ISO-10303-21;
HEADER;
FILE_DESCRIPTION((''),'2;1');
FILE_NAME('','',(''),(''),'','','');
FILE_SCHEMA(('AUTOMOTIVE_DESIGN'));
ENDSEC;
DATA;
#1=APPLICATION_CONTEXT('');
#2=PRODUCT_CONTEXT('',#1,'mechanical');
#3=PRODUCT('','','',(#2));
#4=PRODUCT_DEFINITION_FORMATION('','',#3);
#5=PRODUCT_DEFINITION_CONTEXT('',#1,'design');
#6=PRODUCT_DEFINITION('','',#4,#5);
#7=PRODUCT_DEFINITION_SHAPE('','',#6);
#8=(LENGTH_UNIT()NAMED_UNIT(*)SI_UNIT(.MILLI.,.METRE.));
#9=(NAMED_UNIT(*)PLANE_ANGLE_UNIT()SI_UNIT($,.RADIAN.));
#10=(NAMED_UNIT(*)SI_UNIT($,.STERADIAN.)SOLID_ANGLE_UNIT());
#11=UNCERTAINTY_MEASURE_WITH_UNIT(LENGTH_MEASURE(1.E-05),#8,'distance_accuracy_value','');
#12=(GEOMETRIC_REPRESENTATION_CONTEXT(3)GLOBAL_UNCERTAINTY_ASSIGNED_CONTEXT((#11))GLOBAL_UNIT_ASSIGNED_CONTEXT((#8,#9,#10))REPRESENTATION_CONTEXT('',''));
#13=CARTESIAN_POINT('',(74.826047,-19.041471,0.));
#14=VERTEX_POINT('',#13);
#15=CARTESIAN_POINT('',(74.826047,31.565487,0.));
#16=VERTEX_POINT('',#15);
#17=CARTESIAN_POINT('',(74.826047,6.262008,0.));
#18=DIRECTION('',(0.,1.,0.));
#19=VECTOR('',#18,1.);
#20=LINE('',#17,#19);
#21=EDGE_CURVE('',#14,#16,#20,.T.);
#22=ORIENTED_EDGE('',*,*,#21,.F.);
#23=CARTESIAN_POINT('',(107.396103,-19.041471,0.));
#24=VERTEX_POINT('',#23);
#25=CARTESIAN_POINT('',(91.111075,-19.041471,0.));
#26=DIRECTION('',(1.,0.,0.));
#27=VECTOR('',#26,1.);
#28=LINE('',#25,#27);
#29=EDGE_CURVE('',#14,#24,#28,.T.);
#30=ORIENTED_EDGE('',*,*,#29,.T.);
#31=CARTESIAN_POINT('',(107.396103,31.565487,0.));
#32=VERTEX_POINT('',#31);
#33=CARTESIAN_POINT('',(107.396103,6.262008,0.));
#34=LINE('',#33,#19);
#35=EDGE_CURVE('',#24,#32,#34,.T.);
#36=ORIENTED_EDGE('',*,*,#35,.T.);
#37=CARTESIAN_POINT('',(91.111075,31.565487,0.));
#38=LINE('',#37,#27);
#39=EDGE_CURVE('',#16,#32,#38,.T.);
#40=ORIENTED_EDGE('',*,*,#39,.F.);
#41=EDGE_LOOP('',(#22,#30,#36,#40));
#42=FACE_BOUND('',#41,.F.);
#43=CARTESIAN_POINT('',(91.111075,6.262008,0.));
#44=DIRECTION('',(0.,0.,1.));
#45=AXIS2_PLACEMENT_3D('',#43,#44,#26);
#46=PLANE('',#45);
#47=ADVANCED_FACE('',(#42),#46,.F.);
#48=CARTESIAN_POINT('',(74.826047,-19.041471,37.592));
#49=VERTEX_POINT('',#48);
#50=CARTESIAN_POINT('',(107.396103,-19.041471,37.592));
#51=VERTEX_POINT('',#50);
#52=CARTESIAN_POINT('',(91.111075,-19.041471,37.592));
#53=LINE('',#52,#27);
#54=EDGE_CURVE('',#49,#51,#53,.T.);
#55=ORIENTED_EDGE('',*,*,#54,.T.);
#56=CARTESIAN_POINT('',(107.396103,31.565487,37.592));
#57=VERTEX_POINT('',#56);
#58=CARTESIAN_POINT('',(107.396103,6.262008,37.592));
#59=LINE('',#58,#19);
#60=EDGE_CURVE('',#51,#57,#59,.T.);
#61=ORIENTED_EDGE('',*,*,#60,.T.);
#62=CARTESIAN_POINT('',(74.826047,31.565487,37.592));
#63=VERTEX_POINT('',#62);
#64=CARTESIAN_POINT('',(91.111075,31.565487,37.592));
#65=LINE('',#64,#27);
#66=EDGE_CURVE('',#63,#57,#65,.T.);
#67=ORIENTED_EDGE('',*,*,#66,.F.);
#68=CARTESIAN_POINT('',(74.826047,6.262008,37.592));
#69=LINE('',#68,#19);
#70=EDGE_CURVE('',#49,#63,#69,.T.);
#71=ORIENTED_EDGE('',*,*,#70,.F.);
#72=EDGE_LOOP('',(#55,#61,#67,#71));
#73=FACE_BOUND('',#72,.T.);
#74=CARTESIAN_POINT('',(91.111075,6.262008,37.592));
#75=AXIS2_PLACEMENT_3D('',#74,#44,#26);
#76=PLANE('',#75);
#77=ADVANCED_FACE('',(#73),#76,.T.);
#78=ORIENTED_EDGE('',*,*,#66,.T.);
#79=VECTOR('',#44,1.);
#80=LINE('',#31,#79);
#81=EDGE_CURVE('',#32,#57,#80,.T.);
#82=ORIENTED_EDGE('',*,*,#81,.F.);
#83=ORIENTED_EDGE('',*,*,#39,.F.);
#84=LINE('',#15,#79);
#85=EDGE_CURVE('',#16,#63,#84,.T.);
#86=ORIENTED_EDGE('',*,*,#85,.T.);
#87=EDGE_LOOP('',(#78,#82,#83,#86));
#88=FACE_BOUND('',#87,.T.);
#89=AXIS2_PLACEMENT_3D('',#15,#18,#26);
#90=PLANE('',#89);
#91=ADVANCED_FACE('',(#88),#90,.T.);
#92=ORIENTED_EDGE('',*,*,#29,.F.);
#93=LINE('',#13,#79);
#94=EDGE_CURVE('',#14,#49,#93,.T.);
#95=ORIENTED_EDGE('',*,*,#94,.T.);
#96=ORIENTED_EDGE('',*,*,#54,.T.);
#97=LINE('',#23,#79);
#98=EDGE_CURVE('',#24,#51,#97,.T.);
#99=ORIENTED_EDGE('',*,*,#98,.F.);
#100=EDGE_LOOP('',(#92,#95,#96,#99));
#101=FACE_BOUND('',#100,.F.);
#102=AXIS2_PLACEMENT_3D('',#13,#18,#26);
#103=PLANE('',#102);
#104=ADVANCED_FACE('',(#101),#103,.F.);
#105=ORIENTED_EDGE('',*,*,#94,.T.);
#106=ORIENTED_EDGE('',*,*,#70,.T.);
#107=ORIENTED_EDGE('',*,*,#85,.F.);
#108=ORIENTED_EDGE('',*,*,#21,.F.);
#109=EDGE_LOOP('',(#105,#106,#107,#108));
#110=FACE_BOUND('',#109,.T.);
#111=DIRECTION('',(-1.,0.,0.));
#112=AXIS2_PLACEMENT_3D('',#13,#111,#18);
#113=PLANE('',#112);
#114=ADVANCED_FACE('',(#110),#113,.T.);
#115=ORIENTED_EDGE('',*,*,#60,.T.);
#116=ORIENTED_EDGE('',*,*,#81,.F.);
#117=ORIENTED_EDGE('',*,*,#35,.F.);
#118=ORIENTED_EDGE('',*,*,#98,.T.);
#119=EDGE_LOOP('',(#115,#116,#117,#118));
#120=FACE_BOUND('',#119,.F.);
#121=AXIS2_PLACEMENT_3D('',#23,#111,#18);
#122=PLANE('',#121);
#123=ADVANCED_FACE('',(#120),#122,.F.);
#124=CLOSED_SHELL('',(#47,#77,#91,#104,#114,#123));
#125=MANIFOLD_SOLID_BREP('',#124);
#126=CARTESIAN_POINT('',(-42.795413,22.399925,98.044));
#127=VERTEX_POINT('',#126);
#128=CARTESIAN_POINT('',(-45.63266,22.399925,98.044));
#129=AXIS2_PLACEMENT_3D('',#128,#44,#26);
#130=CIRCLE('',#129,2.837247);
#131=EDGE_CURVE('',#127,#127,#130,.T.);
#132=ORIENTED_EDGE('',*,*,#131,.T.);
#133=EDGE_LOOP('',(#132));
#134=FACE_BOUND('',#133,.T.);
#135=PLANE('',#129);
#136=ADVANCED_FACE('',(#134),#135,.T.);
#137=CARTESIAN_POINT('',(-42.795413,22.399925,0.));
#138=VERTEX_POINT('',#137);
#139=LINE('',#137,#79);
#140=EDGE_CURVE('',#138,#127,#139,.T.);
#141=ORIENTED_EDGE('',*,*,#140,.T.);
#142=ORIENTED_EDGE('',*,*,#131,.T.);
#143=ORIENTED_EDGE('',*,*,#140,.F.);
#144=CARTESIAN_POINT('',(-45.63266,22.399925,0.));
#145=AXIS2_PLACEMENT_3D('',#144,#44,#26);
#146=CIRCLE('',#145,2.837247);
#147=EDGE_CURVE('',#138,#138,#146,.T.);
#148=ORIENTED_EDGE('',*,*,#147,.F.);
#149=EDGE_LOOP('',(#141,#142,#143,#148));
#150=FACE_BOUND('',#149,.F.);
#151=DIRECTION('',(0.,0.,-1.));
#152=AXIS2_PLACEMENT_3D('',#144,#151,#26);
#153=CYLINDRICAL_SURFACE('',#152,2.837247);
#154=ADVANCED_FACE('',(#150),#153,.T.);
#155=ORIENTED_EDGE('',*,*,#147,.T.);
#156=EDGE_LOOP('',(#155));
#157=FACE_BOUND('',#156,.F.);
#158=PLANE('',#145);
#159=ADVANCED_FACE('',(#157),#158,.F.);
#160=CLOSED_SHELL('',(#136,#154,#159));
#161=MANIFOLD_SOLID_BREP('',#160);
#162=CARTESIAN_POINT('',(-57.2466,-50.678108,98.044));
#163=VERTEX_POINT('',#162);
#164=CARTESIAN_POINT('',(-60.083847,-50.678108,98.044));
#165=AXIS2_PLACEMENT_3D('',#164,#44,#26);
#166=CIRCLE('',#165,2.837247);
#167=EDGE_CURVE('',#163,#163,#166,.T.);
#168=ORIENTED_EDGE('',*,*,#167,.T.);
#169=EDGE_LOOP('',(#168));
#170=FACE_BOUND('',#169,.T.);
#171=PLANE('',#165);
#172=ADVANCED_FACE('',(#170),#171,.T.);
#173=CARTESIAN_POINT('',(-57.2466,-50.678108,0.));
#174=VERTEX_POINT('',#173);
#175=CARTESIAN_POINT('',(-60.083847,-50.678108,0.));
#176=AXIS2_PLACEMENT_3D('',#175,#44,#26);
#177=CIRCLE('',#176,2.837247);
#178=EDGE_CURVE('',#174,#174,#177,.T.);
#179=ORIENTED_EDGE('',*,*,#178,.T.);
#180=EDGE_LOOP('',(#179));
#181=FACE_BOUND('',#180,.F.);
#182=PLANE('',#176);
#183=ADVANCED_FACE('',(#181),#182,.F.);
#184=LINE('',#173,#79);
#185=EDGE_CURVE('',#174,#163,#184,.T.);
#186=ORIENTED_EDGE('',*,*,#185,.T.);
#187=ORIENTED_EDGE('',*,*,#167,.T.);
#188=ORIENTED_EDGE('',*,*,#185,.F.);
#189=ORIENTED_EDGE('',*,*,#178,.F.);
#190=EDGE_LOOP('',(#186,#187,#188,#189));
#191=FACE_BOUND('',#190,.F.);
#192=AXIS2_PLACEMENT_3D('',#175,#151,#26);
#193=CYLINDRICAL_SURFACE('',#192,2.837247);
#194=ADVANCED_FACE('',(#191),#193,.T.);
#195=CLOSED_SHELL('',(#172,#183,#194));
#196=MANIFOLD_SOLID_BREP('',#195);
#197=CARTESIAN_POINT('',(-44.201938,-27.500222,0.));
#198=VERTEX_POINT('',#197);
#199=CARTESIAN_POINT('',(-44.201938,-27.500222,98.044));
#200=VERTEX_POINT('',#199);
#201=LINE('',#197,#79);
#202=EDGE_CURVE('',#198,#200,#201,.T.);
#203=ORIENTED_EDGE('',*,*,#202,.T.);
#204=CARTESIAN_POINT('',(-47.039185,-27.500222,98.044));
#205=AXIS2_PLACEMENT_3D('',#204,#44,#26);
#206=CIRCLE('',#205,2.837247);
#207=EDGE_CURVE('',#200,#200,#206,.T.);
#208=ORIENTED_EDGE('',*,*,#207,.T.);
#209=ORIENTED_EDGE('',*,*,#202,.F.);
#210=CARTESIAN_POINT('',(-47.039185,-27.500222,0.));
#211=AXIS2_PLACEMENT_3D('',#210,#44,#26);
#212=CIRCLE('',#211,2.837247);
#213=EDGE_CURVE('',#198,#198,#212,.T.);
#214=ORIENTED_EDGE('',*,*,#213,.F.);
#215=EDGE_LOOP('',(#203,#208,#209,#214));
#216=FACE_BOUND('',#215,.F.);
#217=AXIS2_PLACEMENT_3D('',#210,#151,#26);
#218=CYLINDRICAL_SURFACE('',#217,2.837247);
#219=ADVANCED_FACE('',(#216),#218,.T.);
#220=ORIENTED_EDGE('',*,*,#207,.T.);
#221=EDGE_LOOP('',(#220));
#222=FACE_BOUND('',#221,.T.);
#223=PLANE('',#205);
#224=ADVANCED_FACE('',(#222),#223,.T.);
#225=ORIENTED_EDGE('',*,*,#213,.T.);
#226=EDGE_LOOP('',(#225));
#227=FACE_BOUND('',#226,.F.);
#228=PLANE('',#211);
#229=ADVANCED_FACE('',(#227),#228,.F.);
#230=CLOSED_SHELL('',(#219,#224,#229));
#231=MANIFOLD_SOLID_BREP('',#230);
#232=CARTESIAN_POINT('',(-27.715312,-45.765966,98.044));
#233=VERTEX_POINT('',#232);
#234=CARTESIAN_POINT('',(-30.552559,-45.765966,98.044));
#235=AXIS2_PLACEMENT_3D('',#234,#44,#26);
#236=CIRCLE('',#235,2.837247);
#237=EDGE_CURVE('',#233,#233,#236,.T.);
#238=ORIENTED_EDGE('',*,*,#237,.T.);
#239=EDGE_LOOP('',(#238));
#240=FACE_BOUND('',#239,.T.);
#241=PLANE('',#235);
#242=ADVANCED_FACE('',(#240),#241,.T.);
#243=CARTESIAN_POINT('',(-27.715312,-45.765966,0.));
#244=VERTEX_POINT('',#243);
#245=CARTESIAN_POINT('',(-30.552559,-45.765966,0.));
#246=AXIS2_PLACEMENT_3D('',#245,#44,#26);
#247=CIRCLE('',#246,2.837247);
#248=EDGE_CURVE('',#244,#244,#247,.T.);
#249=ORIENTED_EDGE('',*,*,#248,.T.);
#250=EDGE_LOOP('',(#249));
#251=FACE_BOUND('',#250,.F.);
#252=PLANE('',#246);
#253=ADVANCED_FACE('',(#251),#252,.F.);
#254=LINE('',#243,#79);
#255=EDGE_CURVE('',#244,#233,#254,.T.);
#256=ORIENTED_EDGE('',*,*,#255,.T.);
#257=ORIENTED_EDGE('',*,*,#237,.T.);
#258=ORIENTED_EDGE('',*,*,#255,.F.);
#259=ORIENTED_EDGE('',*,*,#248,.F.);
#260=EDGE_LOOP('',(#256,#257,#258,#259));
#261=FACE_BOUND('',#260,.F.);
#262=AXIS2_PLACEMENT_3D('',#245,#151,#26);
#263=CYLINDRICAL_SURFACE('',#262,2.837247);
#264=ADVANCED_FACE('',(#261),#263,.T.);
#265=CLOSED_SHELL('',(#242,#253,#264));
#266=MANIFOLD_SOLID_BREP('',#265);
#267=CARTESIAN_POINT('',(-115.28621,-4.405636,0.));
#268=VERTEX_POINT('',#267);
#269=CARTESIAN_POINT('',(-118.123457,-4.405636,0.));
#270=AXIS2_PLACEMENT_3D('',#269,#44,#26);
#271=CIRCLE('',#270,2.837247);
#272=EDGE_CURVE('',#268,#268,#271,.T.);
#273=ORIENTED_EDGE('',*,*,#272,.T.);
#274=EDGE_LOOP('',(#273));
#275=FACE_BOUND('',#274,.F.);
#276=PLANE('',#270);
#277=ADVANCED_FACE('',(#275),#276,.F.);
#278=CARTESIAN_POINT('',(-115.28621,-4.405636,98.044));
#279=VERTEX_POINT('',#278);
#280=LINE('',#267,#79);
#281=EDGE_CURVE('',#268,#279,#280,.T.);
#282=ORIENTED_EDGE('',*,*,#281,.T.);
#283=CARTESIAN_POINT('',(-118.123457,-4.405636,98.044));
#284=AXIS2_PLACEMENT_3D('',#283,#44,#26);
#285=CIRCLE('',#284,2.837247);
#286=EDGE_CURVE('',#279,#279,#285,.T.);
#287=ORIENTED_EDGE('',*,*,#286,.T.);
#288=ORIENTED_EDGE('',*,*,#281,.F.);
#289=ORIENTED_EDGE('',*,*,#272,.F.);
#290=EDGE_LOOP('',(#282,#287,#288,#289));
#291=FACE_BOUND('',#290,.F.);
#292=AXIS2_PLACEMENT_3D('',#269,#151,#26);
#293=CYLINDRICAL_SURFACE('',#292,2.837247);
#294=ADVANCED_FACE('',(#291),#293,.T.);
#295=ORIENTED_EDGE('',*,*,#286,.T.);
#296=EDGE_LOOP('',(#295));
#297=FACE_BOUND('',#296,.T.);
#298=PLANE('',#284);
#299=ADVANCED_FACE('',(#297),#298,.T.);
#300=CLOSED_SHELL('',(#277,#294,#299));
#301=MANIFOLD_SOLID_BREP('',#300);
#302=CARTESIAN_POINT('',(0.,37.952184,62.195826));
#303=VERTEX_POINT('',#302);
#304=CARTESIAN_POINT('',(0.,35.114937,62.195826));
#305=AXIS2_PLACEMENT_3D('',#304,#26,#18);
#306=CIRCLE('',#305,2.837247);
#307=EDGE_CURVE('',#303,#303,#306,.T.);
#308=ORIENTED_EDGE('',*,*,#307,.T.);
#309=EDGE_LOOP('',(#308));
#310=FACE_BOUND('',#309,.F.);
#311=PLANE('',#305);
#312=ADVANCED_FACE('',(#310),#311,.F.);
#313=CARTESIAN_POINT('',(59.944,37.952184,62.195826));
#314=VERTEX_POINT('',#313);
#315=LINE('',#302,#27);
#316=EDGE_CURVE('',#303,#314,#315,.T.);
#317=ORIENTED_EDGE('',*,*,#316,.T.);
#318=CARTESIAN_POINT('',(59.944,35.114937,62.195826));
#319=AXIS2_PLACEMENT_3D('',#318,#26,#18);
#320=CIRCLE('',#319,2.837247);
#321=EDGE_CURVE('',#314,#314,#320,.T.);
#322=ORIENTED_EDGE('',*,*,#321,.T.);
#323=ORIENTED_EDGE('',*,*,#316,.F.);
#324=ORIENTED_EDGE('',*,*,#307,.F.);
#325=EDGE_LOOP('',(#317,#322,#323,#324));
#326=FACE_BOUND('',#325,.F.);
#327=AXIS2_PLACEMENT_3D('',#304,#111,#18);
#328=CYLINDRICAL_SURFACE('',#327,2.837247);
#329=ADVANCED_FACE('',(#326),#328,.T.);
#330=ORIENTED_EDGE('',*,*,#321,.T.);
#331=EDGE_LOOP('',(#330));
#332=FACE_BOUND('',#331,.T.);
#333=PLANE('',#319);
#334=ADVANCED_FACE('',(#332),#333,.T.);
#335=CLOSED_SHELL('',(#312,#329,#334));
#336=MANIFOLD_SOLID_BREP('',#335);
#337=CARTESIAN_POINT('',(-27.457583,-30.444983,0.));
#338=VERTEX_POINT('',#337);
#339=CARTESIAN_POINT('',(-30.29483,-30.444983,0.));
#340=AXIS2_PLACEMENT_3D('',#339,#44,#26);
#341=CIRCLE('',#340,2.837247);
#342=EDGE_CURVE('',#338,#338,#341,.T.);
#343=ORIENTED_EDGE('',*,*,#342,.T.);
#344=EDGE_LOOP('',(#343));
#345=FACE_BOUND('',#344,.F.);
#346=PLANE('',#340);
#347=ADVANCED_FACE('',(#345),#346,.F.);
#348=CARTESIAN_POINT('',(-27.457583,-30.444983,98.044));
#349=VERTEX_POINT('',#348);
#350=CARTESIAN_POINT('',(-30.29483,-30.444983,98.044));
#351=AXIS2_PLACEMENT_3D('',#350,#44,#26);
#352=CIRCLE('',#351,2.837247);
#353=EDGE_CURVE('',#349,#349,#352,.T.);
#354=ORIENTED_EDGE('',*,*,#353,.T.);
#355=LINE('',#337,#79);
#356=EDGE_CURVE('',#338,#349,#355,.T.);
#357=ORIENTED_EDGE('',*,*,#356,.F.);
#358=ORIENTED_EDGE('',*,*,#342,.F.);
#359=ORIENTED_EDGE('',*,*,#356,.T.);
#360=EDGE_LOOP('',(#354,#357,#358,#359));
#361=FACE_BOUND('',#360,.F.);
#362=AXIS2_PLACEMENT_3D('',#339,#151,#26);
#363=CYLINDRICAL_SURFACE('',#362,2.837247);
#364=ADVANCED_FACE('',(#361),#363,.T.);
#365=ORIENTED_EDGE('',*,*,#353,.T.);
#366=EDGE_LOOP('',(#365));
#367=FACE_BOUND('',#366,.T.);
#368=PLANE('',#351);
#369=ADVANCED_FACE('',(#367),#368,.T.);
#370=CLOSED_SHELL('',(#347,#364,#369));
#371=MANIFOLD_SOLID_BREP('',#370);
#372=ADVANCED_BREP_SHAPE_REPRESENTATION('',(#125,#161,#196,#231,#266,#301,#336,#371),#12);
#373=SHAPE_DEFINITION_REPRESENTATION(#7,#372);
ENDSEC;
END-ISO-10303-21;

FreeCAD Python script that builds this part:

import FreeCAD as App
import Part
import Sketcher
Q = App.Units.Quantity

doc = App.newDocument("Part")
body = doc.addObject("PartDesign::Body", "Body")
body.AllowCompound = True

# Sketch on XY plane
sketch1 = doc.addObject("Sketcher::SketchObject", "Sketch")
body.addObject(sketch1)
sketch1.AttachmentSupport = (doc.XY_Plane, [""])
sketch1.MapMode = "FlatFace"
sketch1.addGeometry(Part.Circle(App.Vector(-45.6, 22.4, 0), App.Vector(0, 0, 1), 2.8), False)
sketch1.addGeometry(Part.Circle(App.Vector(-47, -27.5, 0), App.Vector(0, 0, 1), 2.8), False)
sketch1.addGeometry(Part.Circle(App.Vector(-30.3, -30.4, 0), App.Vector(0, 0, 1), 2.8), False)
sketch1.addGeometry(Part.Circle(App.Vector(-30.6, -45.8, 0), App.Vector(0, 0, 1), 2.8), False)
sketch1.addGeometry(Part.Circle(App.Vector(-118.1, -4.4, 0), App.Vector(0, 0, 1), 2.8), False)
sketch1.addGeometry(Part.Circle(App.Vector(-60.1, -50.7, 0), App.Vector(0, 0, 1), 2.8), False)
sketch1.addConstraint(Sketcher.Constraint("Equal", 0, 1))
sketch1.addConstraint(Sketcher.Constraint("Equal", 1, 2))
sketch1.addConstraint(Sketcher.Constraint("Equal", 2, 3))
sketch1.addConstraint(Sketcher.Constraint("Equal", 3, 4))
sketch1.addConstraint(Sketcher.Constraint("Equal", 4, 5))
sketch1.addConstraint(Sketcher.Constraint("Diameter", 0, 5.674494))
sketch1.addConstraint(Sketcher.Constraint("DistanceX", 0, 3, 3, 3, 15.080101))
sketch1.addConstraint(Sketcher.Constraint("DistanceX", 4, 3, 3, 3, 87.570898))
sketch1.addConstraint(Sketcher.Constraint("DistanceX", 0, 3, -1, 1, 45.63266))
sketch1.addConstraint(Sketcher.Constraint("DistanceX", 2, 3, -1, 1, 30.29483))
sketch1.addConstraint(Sketcher.Constraint("DistanceY", 5, 3, -1, 1, 50.678108))
sketch1.addConstraint(Sketcher.Constraint("DistanceY", 2, 3, 1, 3, 2.944761))
sketch1.addConstraint(Sketcher.Constraint("DistanceY", 2, 3, 0, 3, 52.844908))
sketch1.addConstraint(Sketcher.Constraint("DistanceY", 3, 3, 0, 3, 68.165891))
sketch1.addConstraint(Sketcher.Constraint("DistanceX", 4, 3, 1, 3, 71.084272))
sketch1.addConstraint(Sketcher.Constraint("DistanceY", 4, 3, 0, 3, 26.805561))
sketch1.addConstraint(Sketcher.Constraint("DistanceX", 5, 3, 1, 3, 13.044662))
sketch1.addConstraint(Sketcher.Constraint("DistanceY", -1, 1, 0, 3, 22.399925))
pad1 = doc.addObject("PartDesign::Pad", "Pad")
body.addObject(pad1)
pad1.Profile = sketch1
pad1.Length = Q("3.86 in")
body2 = doc.addObject("PartDesign::Body", "Body001")

# Sketch on XY plane
sketch2 = doc.addObject("Sketcher::SketchObject", "Sketch001")
body2.addObject(sketch2)
sketch2.AttachmentSupport = (doc.getObject("XY_Plane001"), [""])
sketch2.MapMode = "FlatFace"
sketch2.addGeometry(Part.LineSegment(App.Vector(75, 32, 0), App.Vector(75, -19, 0)), False)
sketch2.addGeometry(Part.LineSegment(App.Vector(75, -19, 0), App.Vector(107, -19, 0)), False)
sketch2.addGeometry(Part.LineSegment(App.Vector(107, -19, 0), App.Vector(107, 32, 0)), False)
sketch2.addGeometry(Part.LineSegment(App.Vector(107, 32, 0), App.Vector(75, 32, 0)), False)
sketch2.addConstraint(Sketcher.Constraint("Coincident", 0, 2, 1, 1))
sketch2.addConstraint(Sketcher.Constraint("Coincident", 1, 2, 2, 1))
sketch2.addConstraint(Sketcher.Constraint("Coincident", 2, 2, 3, 1))
sketch2.addConstraint(Sketcher.Constraint("Coincident", 3, 2, 0, 1))
sketch2.addConstraint(Sketcher.Constraint("Vertical", 0))
sketch2.addConstraint(Sketcher.Constraint("Horizontal", 1))
sketch2.addConstraint(Sketcher.Constraint("Vertical", 2))
sketch2.addConstraint(Sketcher.Constraint("Horizontal", 3))
sketch2.addConstraint(Sketcher.Constraint("DistanceY", 0, 2, 0, 1, Q("1.9923999 in")))
sketch2.addConstraint(Sketcher.Constraint("DistanceX", 1, 1, 1, 2, 32.570056))
sketch2.addConstraint(Sketcher.Constraint("DistanceY", 0, 2, -1, 1, 19.041471))
sketch2.addConstraint(Sketcher.Constraint("DistanceX", -1, 1, 0, 2, 74.826047))
pad2 = doc.addObject("PartDesign::Pad", "Pad001")
body2.addObject(pad2)
pad2.Profile = sketch2
pad2.Length = Q("1.48 in")
body3 = doc.addObject("PartDesign::Body", "Body002")

# Sketch on YZ plane
sketch3 = doc.addObject("Sketcher::SketchObject", "Sketch002")
body3.addObject(sketch3)
sketch3.AttachmentSupport = (doc.getObject("YZ_Plane002"), [""])
sketch3.MapMode = "FlatFace"
sketch3.addGeometry(Part.Circle(App.Vector(35.1, 62.2, 0), App.Vector(0, 0, 1), 2.8), False)
sketch3.addConstraint(Sketcher.Constraint("Diameter", 0, 5.674494))
sketch3.addConstraint(Sketcher.Constraint("DistanceX", -1, 1, 0, 3, 35.114937))
sketch3.addConstraint(Sketcher.Constraint("DistanceY", -1, 1, 0, 3, 62.195826))
pad3 = doc.addObject("PartDesign::Pad", "Pad002")
body3.addObject(pad3)
pad3.Profile = sketch3
pad3.Length = Q("2.36 in")

doc.recompute()
